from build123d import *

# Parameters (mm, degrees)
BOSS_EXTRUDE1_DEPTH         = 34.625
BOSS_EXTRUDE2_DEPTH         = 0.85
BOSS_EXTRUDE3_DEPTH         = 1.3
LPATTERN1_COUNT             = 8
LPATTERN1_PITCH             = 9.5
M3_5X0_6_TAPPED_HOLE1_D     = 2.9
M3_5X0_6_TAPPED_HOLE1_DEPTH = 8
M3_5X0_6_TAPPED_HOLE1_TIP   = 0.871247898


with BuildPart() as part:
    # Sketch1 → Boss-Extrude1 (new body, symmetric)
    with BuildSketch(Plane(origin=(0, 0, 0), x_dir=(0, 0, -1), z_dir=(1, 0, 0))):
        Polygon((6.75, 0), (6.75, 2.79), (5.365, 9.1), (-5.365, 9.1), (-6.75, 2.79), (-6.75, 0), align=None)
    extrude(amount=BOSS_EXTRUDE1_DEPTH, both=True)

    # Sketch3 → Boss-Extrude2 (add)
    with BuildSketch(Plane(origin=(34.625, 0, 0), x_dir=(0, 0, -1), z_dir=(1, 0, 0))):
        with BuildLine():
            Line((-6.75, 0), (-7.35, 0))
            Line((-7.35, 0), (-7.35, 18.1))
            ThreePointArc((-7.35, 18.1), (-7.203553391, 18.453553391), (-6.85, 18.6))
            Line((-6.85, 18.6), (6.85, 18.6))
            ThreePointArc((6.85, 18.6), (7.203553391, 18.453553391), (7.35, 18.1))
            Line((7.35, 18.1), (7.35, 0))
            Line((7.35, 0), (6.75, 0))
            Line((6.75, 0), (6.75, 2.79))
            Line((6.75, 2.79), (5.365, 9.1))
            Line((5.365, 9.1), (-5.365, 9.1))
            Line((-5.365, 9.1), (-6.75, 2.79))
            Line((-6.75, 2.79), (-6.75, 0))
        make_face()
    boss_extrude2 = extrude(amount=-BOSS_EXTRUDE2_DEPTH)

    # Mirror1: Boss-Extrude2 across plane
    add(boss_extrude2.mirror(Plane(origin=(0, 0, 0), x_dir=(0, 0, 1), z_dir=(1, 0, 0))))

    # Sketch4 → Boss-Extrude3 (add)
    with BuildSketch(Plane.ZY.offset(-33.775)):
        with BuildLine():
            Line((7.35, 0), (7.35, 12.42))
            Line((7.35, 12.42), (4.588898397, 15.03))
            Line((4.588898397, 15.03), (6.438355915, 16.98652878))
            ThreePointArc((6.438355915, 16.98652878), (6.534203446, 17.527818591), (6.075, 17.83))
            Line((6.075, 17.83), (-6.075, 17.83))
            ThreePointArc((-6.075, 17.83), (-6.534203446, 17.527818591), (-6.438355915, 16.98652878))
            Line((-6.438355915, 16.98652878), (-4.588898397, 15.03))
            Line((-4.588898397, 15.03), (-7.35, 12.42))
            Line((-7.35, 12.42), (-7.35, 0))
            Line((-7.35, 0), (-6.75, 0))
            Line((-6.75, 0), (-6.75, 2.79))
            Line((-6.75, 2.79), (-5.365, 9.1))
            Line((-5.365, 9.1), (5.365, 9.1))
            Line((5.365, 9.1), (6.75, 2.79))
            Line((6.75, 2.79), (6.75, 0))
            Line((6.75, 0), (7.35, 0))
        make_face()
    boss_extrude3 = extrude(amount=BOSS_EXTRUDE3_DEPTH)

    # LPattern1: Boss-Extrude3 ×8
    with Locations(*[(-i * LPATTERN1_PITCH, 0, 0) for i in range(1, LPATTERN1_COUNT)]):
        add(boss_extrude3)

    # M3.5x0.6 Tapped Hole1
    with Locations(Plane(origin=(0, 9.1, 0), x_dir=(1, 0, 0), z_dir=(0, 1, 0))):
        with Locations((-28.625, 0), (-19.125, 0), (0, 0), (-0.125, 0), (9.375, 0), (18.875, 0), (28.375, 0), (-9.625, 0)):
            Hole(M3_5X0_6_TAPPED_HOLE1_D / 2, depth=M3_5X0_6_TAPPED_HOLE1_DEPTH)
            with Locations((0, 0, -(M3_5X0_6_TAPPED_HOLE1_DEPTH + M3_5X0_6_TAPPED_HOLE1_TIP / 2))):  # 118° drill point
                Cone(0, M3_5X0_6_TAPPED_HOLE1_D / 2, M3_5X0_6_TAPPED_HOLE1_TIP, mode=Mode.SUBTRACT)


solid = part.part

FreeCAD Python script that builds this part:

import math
import FreeCAD as App
import Part
import Sketcher
from FreeCAD import Vector


def add_polygon(sketch, points):
    """Adds a closed chain of lines whose ends are joined by coincident constraints."""
    first, n = sketch.GeometryCount, len(points)
    for a, b in zip(points, points[1:] + points[:1]):
        sketch.addGeometry(Part.LineSegment(App.Vector(*a, 0), App.Vector(*b, 0)), False)
    for i in range(n):
        sketch.addConstraint(Sketcher.Constraint("Coincident", first + i, 2, first + (i + 1) % n, 1))

doc = App.newDocument("Part")
body = doc.addObject("PartDesign::Body", "Body")

# Sketch on YZ plane
sketch1 = doc.addObject("Sketcher::SketchObject", "Sketch")
body.addObject(sketch1)
sketch1.AttachmentSupport = (doc.YZ_Plane, [""])
sketch1.MapMode = "FlatFace"
add_polygon(sketch1, [(0, -6.8), (2.8, -6.8), (9.1, -5.4), (9.1, 5.4), (2.8, 6.8), (0, 6.8)])  # lines 0-5
sketch1.addConstraint([
    Sketcher.Constraint("Horizontal", 0),
    Sketcher.Constraint("Vertical", 2),
    Sketcher.Constraint("Horizontal", 4),
    Sketcher.Constraint("Vertical", 5),
    Sketcher.Constraint("Symmetric", 4, 2, 5, 2, -1, 1),
    Sketcher.Constraint("Vertical", 0, 2, 3, 2),
    Sketcher.Constraint("Equal", 1, 3),
    Sketcher.Constraint("DistanceY", 5, 2, 5, 1, 13.5),
    Sketcher.Constraint("DistanceX", 0, 1, 0, 2, 2.79),
    Sketcher.Constraint("DistanceY", 2, 1, 2, 2, 10.73),
    Sketcher.Constraint("DistanceX", -1, 1, 1, 2, 9.1),
])
pad1 = doc.addObject("PartDesign::Pad", "Pad")
body.addObject(pad1)
pad1.Profile = sketch1
pad1.Length = 69.25
pad1.Midplane = True

# Sketch on YZ plane
sketch2 = doc.addObject("Sketcher::SketchObject", "Sketch001")
body.addObject(sketch2)
sketch2.AttachmentSupport = (doc.YZ_Plane, [""])
sketch2.MapMode = "FlatFace"
sketch2.AttachmentOffset = App.Placement(Vector(0, 0, 34.625), App.Rotation())
sketch2.addGeometry([
    Part.LineSegment(Vector(0, 7.35, 0), Vector(0, 6.75, 0)),  # 0
    Part.LineSegment(Vector(0, 6.75, 0), Vector(2.79, 6.75, 0)),  # 1
    Part.LineSegment(Vector(2.79, 6.75, 0), Vector(9.1, 5.37, 0)),  # 2
    Part.LineSegment(Vector(9.1, 5.37, 0), Vector(9.1, -5.37, 0)),  # 3
    Part.LineSegment(Vector(9.1, -5.37, 0), Vector(2.79, -6.75, 0)),  # 4
    Part.LineSegment(Vector(2.79, -6.75, 0), Vector(0, -6.75, 0)),  # 5
    Part.LineSegment(Vector(0, -6.75, 0), Vector(0, -7.35, 0)),  # 6
    Part.LineSegment(Vector(0, -7.35, 0), Vector(18.1, -7.35, 0)),  # 7
    Part.ArcOfCircle(Part.Circle(Vector(18.1, -6.85, 0), Vector(0, 0, 1), 0.5), math.radians(-90), math.radians(0)),  # 8
    Part.LineSegment(Vector(18.6, -6.85, 0), Vector(18.6, 6.85, 0)),  # 9
    Part.ArcOfCircle(Part.Circle(Vector(18.1, 6.85, 0), Vector(0, 0, 1), 0.5), math.radians(0), math.radians(90)),  # 10
    Part.LineSegment(Vector(18.1, 7.35, 0), Vector(0, 7.35, 0)),  # 11
], False)
sketch2.addConstraint([
    Sketcher.Constraint("Coincident", 0, 2, 1, 1),
    Sketcher.Constraint("Coincident", 1, 2, 2, 1),
    Sketcher.Constraint("Coincident", 2, 2, 3, 1),
    Sketcher.Constraint("Coincident", 3, 2, 4, 1),
    Sketcher.Constraint("Coincident", 4, 2, 5, 1),
    Sketcher.Constraint("Coincident", 5, 2, 6, 1),
    Sketcher.Constraint("Coincident", 6, 2, 7, 1),
    Sketcher.Constraint("Tangent", 7, 2, 8, 1),
    Sketcher.Constraint("Tangent", 8, 2, 9, 1),
    Sketcher.Constraint("Tangent", 9, 2, 10, 1),
    Sketcher.Constraint("Tangent", 10, 2, 11, 1),
    Sketcher.Constraint("Coincident", 11, 2, 0, 1),
    Sketcher.Constraint("Vertical", 0),
    Sketcher.Constraint("Horizontal", 1),
    Sketcher.Constraint("Vertical", 3),
    Sketcher.Constraint("Horizontal", 5),
    Sketcher.Constraint("Vertical", 6),
    Sketcher.Constraint("Horizontal", 7),
    Sketcher.Constraint("Vertical", 9),
    Sketcher.Constraint("Horizontal", 11),
    Sketcher.Constraint("Equal", 8, 10),
    Sketcher.Constraint("Symmetric", 0, 2, 5, 2, -1, 1),
    Sketcher.Constraint("Symmetric", 6, 2, 11, 2, -1),
    Sketcher.Constraint("Vertical", 1, 2, 4, 2),
    Sketcher.Constraint("Equal", 2, 4),
    Sketcher.Constraint("Radius", 8, 0.5),
    Sketcher.Constraint("DistanceX", 7, 1, 7, 2, 18.1),
    Sketcher.Constraint("DistanceY", 0, 2, 0, 1, 0.6),
    Sketcher.Constraint("DistanceY", 9, 1, 9, 2, 13.7),
    Sketcher.Constraint("DistanceX", 2, 2, 10, 3, 9.0),
    Sketcher.Constraint("DistanceX", 1, 1, 1, 2, 2.79),
    Sketcher.Constraint("DistanceY", 3, 2, 3, 1, 10.73),
])
pad2 = doc.addObject("PartDesign::Pad", "Pad001")
body.addObject(pad2)
pad2.Profile = sketch2
pad2.Length = 0.85
pad2.Reversed = True
doc.recompute()

mirrored = doc.addObject("PartDesign::Mirrored", "Mirrored")
body.addObject(mirrored)
mirrored.Originals = [pad2]
mirrored.MirrorPlane = (doc.YZ_Plane, [""])
body.Tip = mirrored

# Sketch on YZ plane
sketch3 = doc.addObject("Sketcher::SketchObject", "Sketch002")
body.addObject(sketch3)
sketch3.AttachmentSupport = (doc.YZ_Plane, [""])
sketch3.MapMode = "FlatFace"
sketch3.AttachmentOffset = App.Placement(Vector(0, 0, 33.775), App.Rotation())
sketch3.addGeometry([
    Part.LineSegment(Vector(0, 7.3, 0), Vector(12.4, 7.3, 0)),  # 0
    Part.LineSegment(Vector(12.4, 7.3, 0), Vector(15, 4.6, 0)),  # 1
    Part.LineSegment(Vector(15, 4.6, 0), Vector(17, 6.4, 0)),  # 2
    Part.ArcOfCircle(Part.Circle(Vector(17.3, 6.1, 0), Vector(0, 0, 1), 0.5), math.radians(0), math.radians(133)),  # 3
    Part.LineSegment(Vector(17.8, 6.1, 0), Vector(17.8, -6.1, 0)),  # 4
    Part.ArcOfCircle(Part.Circle(Vector(17.3, -6.1, 0), Vector(0, 0, 1), 0.5), math.radians(-133), math.radians(0)),  # 5
    Part.LineSegment(Vector(17, -6.4, 0), Vector(15, -4.6, 0)),  # 6
    Part.LineSegment(Vector(15, -4.6, 0), Vector(12.4, -7.3, 0)),  # 7
    Part.LineSegment(Vector(12.4, -7.3, 0), Vector(0, -7.3, 0)),  # 8
    Part.LineSegment(Vector(0, -7.3, 0), Vector(0, -6.8, 0)),  # 9
    Part.LineSegment(Vector(0, -6.8, 0), Vector(2.8, -6.8, 0)),  # 10
    Part.LineSegment(Vector(2.8, -6.8, 0), Vector(9.1, -5.4, 0)),  # 11
    Part.LineSegment(Vector(9.1, -5.4, 0), Vector(9.1, 5.4, 0)),  # 12
    Part.LineSegment(Vector(9.1, 5.4, 0), Vector(2.8, 6.8, 0)),  # 13
    Part.LineSegment(Vector(2.8, 6.8, 0), Vector(0, 6.8, 0)),  # 14
    Part.LineSegment(Vector(0, 6.8, 0), Vector(0, 7.3, 0)),  # 15
], False)
sketch3.addConstraint([
    Sketcher.Constraint("Coincident", 0, 2, 1, 1),
    Sketcher.Constraint("Coincident", 1, 2, 2, 1),
    Sketcher.Constraint("Tangent", 2, 2, 3, 2),
    Sketcher.Constraint("Tangent", 3, 1, 4, 1),
    Sketcher.Constraint("Tangent", 4, 2, 5, 2),
    Sketcher.Constraint("Tangent", 5, 1, 6, 1),
    Sketcher.Constraint("Coincident", 6, 2, 7, 1),
    Sketcher.Constraint("Coincident", 7, 2, 8, 1),
    Sketcher.Constraint("Coincident", 8, 2, 9, 1),
    Sketcher.Constraint("Coincident", 9, 2, 10, 1),
    Sketcher.Constraint("Coincident", 10, 2, 11, 1),
    Sketcher.Constraint("Coincident", 11, 2, 12, 1),
    Sketcher.Constraint("Coincident", 12, 2, 13, 1),
    Sketcher.Constraint("Coincident", 13, 2, 14, 1),
    Sketcher.Constraint("Coincident", 14, 2, 15, 1),
    Sketcher.Constraint("Coincident", 15, 2, 0, 1),
    Sketcher.Constraint("Horizontal", 0),
    Sketcher.Constraint("Vertical", 4),
    Sketcher.Constraint("Horizontal", 8),
    Sketcher.Constraint("Vertical", 9),
    Sketcher.Constraint("Horizontal", 10),
    Sketcher.Constraint("Vertical", 12),
    Sketcher.Constraint("Horizontal", 14),
    Sketcher.Constraint("Vertical", 15),
    Sketcher.Constraint("Equal", 3, 5),
    Sketcher.Constraint("Symmetric", 9, 2, 14, 2, -1, 1),
    Sketcher.Constraint("Symmetric", 2, 2, 5, 1, -1),
    Sketcher.Constraint("Symmetric", 0, 2, 7, 2, -1),
    Sketcher.Constraint("PointOnObject", 8, 2, -2),
    Sketcher.Constraint("Perpendicular", 1, 2),
    Sketcher.Constraint("Perpendicular", 6, 7),
    Sketcher.Constraint("Vertical", 10, 2, 13, 2),
    Sketcher.Constraint("Equal", 11, 13),
    Sketcher.Constraint("Radius", 3, 0.5),
    Sketcher.Constraint("DistanceY", 9, 1, 9, 2, 0.6),
    Sketcher.Constraint("DistanceX", 0, 1, 0, 2, 12.42),
    Sketcher.Constraint("DistanceX", 10, 1, 10, 2, 2.79),
    Sketcher.Constraint("DistanceY", 4, 2, 4, 1, 12.15),
    Sketcher.Constraint("DistanceY", 12, 1, 12, 2, 10.73),
    Sketcher.Constraint("DistanceX", -1, 1, 11, 2, 9.1),
    Sketcher.Constraint("DistanceX", 1, 2, 3, 3, 2.3),
    Sketcher.Constraint("DistanceY", 10, 2, 13, 2, 13.5),
    Sketcher.Constraint("DistanceX", -1, 1, 3, 3, 17.33),
])
pad3 = doc.addObject("PartDesign::Pad", "Pad002")
body.addObject(pad3)
pad3.Profile = sketch3
pad3.Length = 1.3
pad3.Reversed = True
doc.recompute()

linearpattern = doc.addObject("PartDesign::LinearPattern", "LinearPattern")
body.addObject(linearpattern)
linearpattern.Originals = [pad3]
linearpattern.Direction = (doc.X_Axis, [""])
linearpattern.Mode = "offset"
linearpattern.Offset = 9.5
linearpattern.Occurrences = 8
linearpattern.Reversed = True
body.Tip = linearpattern

# Sketch on XZ plane
sketch4 = doc.addObject("Sketcher::SketchObject", "Sketch003")
body.addObject(sketch4)
sketch4.AttachmentSupport = (doc.XZ_Plane, [""])
sketch4.MapMode = "FlatFace"
sketch4.AttachmentOffset = App.Placement(Vector(0, 0, -9.1), App.Rotation())
sketch4.addGeometry([
    Part.Circle(Vector(-28.6, 0, 0), Vector(0, 0, 1), 1.4),  # 0
    Part.Circle(Vector(-19.1, 0, 0), Vector(0, 0, 1), 1.4),  # 1
    Part.Circle(Vector(0, 0, 0), Vector(0, 0, 1), 1.4),  # 2
    Part.Circle(Vector(-0.1, 0, 0), Vector(0, 0, 1), 1.4),  # 3
    Part.Circle(Vector(9.4, 0, 0), Vector(0, 0, 1), 1.4),  # 4
    Part.Circle(Vector(18.9, 0, 0), Vector(0, 0, 1), 1.4),  # 5
    Part.Circle(Vector(28.4, 0, 0), Vector(0, 0, 1), 1.4),  # 6
    Part.Circle(Vector(-9.6, 0, 0), Vector(0, 0, 1), 1.4),  # 7
], False)
sketch4.addConstraint([
    Sketcher.Constraint("Coincident", 2, 3, -1, 1),
    Sketcher.Constraint("Equal", 0, 1),
    Sketcher.Constraint("Equal", 1, 2),
    Sketcher.Constraint("Equal", 2, 3),
    Sketcher.Constraint("Equal", 3, 4),
    Sketcher.Constraint("Equal", 4, 5),
    Sketcher.Constraint("Equal", 5, 6),
    Sketcher.Constraint("Equal", 6, 7),
    Sketcher.Constraint("PointOnObject", 0, 3, -1),
    Sketcher.Constraint("PointOnObject", 1, 3, -1),
    Sketcher.Constraint("PointOnObject", 3, 3, -1),
    Sketcher.Constraint("PointOnObject", 4, 3, -1),
    Sketcher.Constraint("PointOnObject", 5, 3, -1),
    Sketcher.Constraint("PointOnObject", 6, 3, -1),
    Sketcher.Constraint("PointOnObject", 7, 3, -1),
    Sketcher.Constraint("Diameter", 0, 2.9),
    Sketcher.Constraint("DistanceX", 1, 3, 3, 3, 19.0),
    Sketcher.Constraint("DistanceX", 0, 3, 4, 3, 38.0),
    Sketcher.Constraint("DistanceX", 3, 3, 5, 3, 19.0),
    Sketcher.Constraint("DistanceX", 4, 3, 6, 3, 19.0),
    Sketcher.Constraint("DistanceX", 0, 3, 7, 3, 19.0),
    Sketcher.Constraint("DistanceX", 0, 3, 1, 3, 9.5),
    Sketcher.Constraint("DistanceX", 0, 3, -1, 1, 28.625),
])
doc.recompute()
hole = doc.addObject("PartDesign::Hole", "Hole")
body.addObject(hole)
hole.Profile = sketch4
hole.ThreadType = "None"
hole.Diameter = 2.9
hole.DepthType = "Dimension"
hole.Depth = 8
hole.DrillPoint = "Angled"
hole.DrillPointAngle = 118
hole.Reversed = True

doc.recompute()
